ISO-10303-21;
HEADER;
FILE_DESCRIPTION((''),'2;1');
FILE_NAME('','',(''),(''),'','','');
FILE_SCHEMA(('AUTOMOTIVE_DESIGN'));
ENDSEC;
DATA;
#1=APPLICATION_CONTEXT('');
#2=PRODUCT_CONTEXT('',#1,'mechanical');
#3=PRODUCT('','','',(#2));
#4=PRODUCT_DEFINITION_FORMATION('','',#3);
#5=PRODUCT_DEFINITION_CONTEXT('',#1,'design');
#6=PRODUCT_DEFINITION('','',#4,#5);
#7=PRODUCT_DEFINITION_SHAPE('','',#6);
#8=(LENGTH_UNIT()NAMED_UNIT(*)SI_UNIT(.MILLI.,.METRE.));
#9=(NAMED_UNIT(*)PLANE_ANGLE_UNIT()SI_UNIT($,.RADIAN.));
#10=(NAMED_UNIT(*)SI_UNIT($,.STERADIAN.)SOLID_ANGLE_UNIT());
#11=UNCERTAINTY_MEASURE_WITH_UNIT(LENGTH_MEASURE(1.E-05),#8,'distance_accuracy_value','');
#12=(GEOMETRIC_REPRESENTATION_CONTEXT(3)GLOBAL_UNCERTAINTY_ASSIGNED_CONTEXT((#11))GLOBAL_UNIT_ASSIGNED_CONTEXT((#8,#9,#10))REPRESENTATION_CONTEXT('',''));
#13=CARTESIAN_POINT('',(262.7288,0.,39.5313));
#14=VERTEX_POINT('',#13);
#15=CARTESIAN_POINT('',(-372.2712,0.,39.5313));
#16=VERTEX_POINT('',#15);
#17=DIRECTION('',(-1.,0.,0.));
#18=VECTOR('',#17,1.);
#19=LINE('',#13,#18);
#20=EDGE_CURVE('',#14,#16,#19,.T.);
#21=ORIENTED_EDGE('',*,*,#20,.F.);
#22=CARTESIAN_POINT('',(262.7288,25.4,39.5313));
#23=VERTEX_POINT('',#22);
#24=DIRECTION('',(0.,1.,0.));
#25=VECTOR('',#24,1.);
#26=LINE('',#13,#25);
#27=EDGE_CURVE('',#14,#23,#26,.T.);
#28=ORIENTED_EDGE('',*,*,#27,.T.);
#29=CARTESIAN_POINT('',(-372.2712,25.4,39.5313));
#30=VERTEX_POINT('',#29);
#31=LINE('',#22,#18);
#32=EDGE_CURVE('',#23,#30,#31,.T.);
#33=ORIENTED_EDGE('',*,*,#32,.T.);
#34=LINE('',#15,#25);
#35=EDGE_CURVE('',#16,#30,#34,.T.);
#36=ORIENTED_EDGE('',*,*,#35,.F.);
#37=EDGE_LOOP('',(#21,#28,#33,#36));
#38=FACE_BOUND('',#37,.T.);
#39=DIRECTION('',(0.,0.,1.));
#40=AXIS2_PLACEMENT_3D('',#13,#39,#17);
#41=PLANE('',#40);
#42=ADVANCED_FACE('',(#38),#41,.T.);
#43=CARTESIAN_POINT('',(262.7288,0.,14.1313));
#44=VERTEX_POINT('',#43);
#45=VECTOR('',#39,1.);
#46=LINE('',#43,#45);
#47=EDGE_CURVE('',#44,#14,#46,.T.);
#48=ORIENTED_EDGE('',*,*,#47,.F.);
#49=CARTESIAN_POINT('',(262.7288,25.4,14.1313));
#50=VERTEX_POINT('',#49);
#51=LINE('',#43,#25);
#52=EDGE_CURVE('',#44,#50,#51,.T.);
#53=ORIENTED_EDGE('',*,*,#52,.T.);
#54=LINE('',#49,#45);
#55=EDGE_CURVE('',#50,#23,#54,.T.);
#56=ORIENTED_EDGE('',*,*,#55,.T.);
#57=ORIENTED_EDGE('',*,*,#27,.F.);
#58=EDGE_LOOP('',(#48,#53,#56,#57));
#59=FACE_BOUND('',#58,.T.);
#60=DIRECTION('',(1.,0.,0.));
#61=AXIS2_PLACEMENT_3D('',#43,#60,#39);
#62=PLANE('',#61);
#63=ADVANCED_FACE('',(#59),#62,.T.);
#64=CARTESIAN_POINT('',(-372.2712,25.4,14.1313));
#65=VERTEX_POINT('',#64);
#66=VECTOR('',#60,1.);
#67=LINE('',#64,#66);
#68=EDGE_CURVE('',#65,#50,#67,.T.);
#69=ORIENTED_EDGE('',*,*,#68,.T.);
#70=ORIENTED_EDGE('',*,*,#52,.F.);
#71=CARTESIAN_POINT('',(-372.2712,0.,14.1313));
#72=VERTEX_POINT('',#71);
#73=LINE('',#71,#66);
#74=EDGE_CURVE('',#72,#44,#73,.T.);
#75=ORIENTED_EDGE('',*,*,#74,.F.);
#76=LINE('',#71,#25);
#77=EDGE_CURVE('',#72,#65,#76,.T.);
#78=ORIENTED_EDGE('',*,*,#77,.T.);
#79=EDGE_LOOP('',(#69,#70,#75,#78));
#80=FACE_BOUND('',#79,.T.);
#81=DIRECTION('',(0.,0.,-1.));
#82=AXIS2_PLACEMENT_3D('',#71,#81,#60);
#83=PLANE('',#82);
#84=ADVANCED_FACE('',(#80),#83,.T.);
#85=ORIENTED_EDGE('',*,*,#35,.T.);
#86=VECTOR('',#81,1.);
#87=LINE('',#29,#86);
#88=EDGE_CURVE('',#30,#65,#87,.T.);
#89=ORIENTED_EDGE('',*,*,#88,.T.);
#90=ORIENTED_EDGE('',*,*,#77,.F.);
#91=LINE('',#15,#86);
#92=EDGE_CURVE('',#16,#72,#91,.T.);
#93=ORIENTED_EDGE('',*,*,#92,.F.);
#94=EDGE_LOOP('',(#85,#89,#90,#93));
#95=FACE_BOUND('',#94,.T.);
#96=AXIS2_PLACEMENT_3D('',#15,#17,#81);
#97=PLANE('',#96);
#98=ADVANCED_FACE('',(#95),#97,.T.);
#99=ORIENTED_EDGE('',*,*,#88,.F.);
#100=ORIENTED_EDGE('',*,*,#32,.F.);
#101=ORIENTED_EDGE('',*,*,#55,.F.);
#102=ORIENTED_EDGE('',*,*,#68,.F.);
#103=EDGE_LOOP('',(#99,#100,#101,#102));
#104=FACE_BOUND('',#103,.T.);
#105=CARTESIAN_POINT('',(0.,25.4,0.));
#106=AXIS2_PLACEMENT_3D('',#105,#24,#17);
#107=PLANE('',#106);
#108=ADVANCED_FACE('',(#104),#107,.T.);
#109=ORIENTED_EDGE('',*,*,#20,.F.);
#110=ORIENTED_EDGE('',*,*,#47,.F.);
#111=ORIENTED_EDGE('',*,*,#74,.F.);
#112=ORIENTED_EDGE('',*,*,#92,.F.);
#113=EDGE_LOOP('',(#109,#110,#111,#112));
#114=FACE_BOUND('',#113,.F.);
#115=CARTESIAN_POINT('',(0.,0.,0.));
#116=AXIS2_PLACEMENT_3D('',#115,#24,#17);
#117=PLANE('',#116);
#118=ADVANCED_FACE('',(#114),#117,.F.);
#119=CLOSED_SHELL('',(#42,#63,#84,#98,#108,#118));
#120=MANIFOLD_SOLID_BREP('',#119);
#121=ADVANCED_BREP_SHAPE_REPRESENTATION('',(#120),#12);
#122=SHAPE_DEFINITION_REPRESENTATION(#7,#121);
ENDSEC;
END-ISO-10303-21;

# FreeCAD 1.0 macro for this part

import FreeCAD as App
import Part
import Sketcher

V = App.Vector
Q = App.Units.Quantity

doc = App.newDocument("Part")
body = doc.addObject("PartDesign::Body", "Body")

# Sketch on XZ plane
sketch1 = body.newObject("Sketcher::SketchObject", "Sketch")
sketch1.AttachmentSupport = (doc.getObject("XZ_Plane"), [""])
sketch1.MapMode = "FlatFace"
sketch1.addGeometry(Part.LineSegment(V(-372.2712, 39.5313, 0), V(262.7288, 39.5313, 0)), False)
sketch1.addGeometry(Part.LineSegment(V(262.7288, 39.5313, 0), V(262.7288, 14.1313, 0)), False)
sketch1.addGeometry(Part.LineSegment(V(262.7288, 14.1313, 0), V(-372.2712, 14.1313, 0)), False)
sketch1.addGeometry(Part.LineSegment(V(-372.2712, 14.1313, 0), V(-372.2712, 39.5313, 0)), False)
sketch1.addConstraint(Sketcher.Constraint("Coincident", 0, 2, 1, 1))
sketch1.addConstraint(Sketcher.Constraint("Coincident", 1, 2, 2, 1))
sketch1.addConstraint(Sketcher.Constraint("Coincident", 2, 2, 3, 1))
sketch1.addConstraint(Sketcher.Constraint("Coincident", 3, 2, 0, 1))
sketch1.addConstraint(Sketcher.Constraint("Horizontal", 0))
sketch1.addConstraint(Sketcher.Constraint("Vertical", 1))
sketch1.addConstraint(Sketcher.Constraint("Horizontal", 2))
sketch1.addConstraint(Sketcher.Constraint("Vertical", 3))
sketch1.addConstraint(Sketcher.Constraint("DistanceX", 0, 1, 0, 2, Q("25 in")))
sketch1.addConstraint(Sketcher.Constraint("DistanceY", 1, 2, 1, 1, Q("1 in")))
sketch1.addConstraint(Sketcher.Constraint("DistanceX", -1, 1, 0, 2, Q("262.7288 mm")))
sketch1.addConstraint(Sketcher.Constraint("DistanceY", -1, 1, 0, 2, Q("39.5313 mm")))
pad1 = body.newObject("PartDesign::Pad", "Pad")
pad1.Profile = sketch1
pad1.Length = Q("1 in")
pad1.Reversed = True

doc.recompute()
